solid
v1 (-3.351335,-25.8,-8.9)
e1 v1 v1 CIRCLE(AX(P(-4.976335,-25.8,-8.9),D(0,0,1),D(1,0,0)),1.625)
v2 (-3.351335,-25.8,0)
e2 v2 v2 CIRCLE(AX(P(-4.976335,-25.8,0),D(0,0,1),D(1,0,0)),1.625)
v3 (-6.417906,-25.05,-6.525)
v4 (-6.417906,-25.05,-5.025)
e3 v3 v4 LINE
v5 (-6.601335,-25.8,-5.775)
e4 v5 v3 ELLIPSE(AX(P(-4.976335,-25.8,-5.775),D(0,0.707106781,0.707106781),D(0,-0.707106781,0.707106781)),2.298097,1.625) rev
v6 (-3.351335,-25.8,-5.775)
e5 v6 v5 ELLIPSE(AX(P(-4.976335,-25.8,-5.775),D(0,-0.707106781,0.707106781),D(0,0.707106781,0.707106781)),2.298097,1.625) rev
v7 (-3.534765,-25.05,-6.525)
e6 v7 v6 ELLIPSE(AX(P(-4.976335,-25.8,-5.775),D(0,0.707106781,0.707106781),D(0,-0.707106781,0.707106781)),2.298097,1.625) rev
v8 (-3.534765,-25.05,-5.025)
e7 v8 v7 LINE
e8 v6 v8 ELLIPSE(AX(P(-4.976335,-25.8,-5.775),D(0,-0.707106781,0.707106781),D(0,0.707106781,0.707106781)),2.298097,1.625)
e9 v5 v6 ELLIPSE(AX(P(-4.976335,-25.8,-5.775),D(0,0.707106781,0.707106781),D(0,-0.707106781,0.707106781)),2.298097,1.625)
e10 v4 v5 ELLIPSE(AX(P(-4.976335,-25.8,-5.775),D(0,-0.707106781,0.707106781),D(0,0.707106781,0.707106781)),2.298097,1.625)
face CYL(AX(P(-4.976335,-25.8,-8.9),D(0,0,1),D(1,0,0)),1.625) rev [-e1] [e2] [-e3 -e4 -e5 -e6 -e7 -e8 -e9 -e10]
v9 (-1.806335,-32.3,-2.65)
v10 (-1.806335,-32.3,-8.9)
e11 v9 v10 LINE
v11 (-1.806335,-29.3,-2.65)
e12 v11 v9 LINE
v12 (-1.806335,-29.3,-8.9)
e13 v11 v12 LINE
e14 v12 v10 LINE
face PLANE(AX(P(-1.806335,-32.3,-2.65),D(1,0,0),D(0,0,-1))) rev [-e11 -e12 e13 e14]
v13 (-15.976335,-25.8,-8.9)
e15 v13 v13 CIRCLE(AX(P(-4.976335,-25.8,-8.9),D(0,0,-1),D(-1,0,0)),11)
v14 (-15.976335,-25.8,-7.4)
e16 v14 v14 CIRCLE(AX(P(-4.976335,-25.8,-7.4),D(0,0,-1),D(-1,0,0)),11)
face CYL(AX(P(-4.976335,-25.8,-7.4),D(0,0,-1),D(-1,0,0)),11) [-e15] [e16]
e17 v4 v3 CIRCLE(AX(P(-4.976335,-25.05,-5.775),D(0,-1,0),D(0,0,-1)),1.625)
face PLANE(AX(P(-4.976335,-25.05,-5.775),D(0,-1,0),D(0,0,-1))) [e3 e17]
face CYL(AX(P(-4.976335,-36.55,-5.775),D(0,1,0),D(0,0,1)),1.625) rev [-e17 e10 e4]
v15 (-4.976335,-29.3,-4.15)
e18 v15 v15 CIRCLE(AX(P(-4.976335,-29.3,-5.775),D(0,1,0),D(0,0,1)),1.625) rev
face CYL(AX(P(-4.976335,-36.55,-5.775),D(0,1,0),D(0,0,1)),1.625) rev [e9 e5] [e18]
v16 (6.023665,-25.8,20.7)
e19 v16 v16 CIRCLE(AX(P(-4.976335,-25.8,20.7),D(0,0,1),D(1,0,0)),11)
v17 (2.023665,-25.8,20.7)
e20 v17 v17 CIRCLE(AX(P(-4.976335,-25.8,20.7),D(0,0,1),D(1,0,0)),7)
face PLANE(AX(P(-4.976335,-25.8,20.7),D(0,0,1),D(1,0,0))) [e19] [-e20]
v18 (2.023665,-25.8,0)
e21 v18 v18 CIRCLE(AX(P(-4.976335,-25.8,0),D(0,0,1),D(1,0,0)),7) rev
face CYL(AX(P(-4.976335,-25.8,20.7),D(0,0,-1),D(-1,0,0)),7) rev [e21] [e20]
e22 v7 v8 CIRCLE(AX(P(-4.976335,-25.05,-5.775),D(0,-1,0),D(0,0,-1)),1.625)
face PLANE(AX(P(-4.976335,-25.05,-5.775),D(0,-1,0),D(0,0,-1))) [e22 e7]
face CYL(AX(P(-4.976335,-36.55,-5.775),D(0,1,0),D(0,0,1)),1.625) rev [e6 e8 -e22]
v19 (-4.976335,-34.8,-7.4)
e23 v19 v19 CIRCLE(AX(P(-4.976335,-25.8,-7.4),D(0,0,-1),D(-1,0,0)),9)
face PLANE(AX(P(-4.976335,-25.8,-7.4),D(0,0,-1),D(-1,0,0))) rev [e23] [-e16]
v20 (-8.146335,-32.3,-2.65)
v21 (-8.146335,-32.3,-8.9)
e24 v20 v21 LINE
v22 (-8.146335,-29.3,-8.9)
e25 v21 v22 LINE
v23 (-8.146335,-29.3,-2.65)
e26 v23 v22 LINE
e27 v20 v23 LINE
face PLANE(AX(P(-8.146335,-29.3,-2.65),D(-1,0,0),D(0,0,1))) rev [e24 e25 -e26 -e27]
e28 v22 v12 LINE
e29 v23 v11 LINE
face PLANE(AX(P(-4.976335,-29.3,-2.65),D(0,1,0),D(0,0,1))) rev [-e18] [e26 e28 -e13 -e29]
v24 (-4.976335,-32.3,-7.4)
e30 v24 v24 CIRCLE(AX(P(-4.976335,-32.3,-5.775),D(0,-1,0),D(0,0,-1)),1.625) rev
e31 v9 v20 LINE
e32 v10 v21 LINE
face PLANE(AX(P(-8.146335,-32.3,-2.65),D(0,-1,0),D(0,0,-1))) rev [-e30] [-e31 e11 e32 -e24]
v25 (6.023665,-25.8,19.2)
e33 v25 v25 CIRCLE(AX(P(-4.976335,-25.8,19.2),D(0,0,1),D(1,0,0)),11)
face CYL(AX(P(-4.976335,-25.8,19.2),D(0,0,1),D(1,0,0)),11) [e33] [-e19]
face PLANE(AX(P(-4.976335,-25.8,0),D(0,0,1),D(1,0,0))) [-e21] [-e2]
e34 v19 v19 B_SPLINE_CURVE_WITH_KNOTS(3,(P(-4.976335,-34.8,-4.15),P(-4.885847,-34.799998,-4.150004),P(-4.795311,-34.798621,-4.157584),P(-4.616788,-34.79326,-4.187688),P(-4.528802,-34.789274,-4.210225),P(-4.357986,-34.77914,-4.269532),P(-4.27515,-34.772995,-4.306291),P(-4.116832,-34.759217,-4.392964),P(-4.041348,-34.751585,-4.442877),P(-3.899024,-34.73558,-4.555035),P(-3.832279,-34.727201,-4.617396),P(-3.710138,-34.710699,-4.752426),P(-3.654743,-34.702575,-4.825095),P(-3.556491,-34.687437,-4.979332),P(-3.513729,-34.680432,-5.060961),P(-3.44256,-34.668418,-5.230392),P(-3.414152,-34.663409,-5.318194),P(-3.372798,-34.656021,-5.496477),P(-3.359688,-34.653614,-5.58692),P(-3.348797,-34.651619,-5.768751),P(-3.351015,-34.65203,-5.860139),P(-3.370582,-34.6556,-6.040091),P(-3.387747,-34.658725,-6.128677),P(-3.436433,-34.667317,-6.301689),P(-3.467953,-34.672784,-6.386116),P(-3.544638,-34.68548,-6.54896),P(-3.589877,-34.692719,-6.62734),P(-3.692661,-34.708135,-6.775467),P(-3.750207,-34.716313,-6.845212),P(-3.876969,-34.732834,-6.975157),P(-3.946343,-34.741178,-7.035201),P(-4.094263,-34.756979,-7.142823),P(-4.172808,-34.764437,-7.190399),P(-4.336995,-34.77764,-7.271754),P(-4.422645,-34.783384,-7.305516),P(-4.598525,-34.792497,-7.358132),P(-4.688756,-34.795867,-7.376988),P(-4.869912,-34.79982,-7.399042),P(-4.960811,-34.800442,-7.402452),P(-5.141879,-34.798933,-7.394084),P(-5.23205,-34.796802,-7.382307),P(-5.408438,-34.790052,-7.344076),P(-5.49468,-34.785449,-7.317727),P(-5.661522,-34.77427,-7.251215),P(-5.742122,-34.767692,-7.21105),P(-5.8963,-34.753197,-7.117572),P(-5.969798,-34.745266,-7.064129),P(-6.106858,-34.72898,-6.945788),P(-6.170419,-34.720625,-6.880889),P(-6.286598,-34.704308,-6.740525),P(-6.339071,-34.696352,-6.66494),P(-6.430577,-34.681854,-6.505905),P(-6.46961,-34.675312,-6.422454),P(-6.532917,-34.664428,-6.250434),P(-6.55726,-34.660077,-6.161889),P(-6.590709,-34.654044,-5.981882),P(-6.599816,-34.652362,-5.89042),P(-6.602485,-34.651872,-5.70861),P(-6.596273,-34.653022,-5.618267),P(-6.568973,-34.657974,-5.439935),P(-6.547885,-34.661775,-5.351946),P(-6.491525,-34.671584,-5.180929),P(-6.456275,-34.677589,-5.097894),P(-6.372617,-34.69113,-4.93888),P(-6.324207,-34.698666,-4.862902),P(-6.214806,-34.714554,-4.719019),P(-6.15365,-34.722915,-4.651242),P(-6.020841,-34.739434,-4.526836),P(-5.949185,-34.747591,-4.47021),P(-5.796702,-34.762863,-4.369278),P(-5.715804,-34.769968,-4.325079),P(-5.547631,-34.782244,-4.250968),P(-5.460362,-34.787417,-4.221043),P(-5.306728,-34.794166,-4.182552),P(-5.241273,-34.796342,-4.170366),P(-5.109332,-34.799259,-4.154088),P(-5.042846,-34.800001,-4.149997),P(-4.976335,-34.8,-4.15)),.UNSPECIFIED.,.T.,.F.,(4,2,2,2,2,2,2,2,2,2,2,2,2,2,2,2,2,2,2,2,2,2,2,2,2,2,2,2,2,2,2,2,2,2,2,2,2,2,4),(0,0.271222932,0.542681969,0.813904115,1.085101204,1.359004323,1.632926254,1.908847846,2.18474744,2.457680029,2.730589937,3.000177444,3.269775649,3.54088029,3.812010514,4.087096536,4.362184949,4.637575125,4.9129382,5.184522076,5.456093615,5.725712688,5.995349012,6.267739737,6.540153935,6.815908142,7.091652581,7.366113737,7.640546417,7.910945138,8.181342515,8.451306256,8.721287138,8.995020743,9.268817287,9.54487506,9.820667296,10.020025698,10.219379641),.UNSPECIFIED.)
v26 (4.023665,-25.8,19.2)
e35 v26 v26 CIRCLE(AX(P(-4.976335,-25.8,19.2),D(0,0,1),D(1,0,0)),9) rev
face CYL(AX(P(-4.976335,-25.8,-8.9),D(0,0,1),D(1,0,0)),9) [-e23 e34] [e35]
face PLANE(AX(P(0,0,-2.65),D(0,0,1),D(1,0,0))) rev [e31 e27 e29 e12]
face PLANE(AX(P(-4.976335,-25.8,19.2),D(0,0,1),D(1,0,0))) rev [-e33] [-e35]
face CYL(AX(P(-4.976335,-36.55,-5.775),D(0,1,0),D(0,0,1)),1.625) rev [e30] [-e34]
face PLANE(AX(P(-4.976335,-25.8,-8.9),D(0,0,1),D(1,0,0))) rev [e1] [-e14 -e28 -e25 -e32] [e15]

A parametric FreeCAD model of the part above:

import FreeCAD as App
import Part
import Sketcher

V = App.Vector
Q = App.Units.Quantity


def add_polygon(sketch, points):
    """Adds a closed chain of lines whose ends are joined by coincident constraints."""
    first, n = sketch.GeometryCount, len(points)
    for a, b in zip(points, points[1:] + points[:1]):
        sketch.addGeometry(Part.LineSegment(App.Vector(*a, 0), App.Vector(*b, 0)), False)
    for i in range(n):
        sketch.addConstraint(Sketcher.Constraint("Coincident", first + i, 2, first + (i + 1) % n, 1))

doc = App.newDocument("Part")
body = doc.addObject("PartDesign::Body", "Body")

# Sketch on XY plane
sketch1 = body.newObject("Sketcher::SketchObject", "Sketch")
sketch1.AttachmentSupport = (doc.getObject("XY_Plane"), [""])
sketch1.MapMode = "FlatFace"
sketch1.addGeometry(Part.Circle(V(-5, -25.8, 0), V(0, 0, 1), 9), False)
sketch1.addGeometry(Part.Circle(V(-5, -25.8, 0), V(0, 0, 1), 1.6), False)
sketch1.addConstraint(Sketcher.Constraint("Coincident", 1, 3, 0, 3))
sketch1.addConstraint(Sketcher.Constraint("Diameter", 0, Q("18 mm")))
sketch1.addConstraint(Sketcher.Constraint("Diameter", 1, Q("3.25 mm")))
sketch1.addConstraint(Sketcher.Constraint("DistanceY", 0, 3, -1, 1, Q("25.8 mm")))
sketch1.addConstraint(Sketcher.Constraint("DistanceX", 0, 3, -1, 1, Q("4.976335 mm")))
pad1 = body.newObject("PartDesign::Pad", "Pad")
pad1.Profile = sketch1
pad1.Length = 8.9
pad1.Reversed = True

# Sketch on XY plane
sketch2 = body.newObject("Sketcher::SketchObject", "Sketch001")
sketch2.AttachmentSupport = (doc.getObject("XY_Plane"), [""])
sketch2.MapMode = "FlatFace"
sketch2.AttachmentOffset = App.Placement(V(0, 0, 20.7), App.Rotation())
sketch2.addGeometry(Part.Circle(V(-5, -26, 0), V(0, 0, 1), 9), False)
sketch2.addGeometry(Part.Circle(V(-5, -26, 0), V(0, 0, 1), 7), False)
sketch2.addConstraint(Sketcher.Constraint("Coincident", 1, 3, 0, 3))
sketch2.addConstraint(Sketcher.Constraint("Diameter", 0, Q("18 mm")))
sketch2.addConstraint(Sketcher.Constraint("Diameter", 1, Q("14 mm")))
sketch2.addConstraint(Sketcher.Constraint("DistanceY", 0, 3, -1, 1, Q("25.8 mm")))
sketch2.addConstraint(Sketcher.Constraint("DistanceX", 0, 3, -1, 1, Q("4.976335 mm")))
pad2 = body.newObject("PartDesign::Pad", "Pad001")
pad2.Profile = sketch2
pad2.Length = 20.7
pad2.Reversed = True

# Sketch on XY plane
sketch3 = body.newObject("Sketcher::SketchObject", "Sketch002")
sketch3.AttachmentSupport = (doc.getObject("XY_Plane"), [""])
sketch3.MapMode = "FlatFace"
sketch3.AttachmentOffset = App.Placement(V(0, 0, -8.9), App.Rotation())
add_polygon(sketch3, [(-8.1, -32.3), (-8.1, -29.3), (-1.8, -29.3), (-1.8, -32.3)])  # lines 0-3
sketch3.addConstraint(Sketcher.Constraint("Vertical", 0))
sketch3.addConstraint(Sketcher.Constraint("Horizontal", 1))
sketch3.addConstraint(Sketcher.Constraint("Vertical", 2))
sketch3.addConstraint(Sketcher.Constraint("Horizontal", 3))
sketch3.addConstraint(Sketcher.Constraint("DistanceY", 0, 1, 0, 2, Q("3 mm")))
sketch3.addConstraint(Sketcher.Constraint("DistanceX", 1, 1, 1, 2, Q("6.34 mm")))
sketch3.addConstraint(Sketcher.Constraint("DistanceY", 0, 2, -1, 1, Q("29.3 mm")))
sketch3.addConstraint(Sketcher.Constraint("DistanceX", 0, 2, -1, 1, Q("8.146335 mm")))
pocket1 = body.newObject("PartDesign::Pocket", "Pocket")
pocket1.Profile = sketch3
pocket1.Length = 6.25
pocket1.Reversed = True

# Sketch on XZ plane
sketch4 = body.newObject("Sketcher::SketchObject", "Sketch003")
sketch4.AttachmentSupport = (doc.getObject("XZ_Plane"), [""])
sketch4.MapMode = "FlatFace"
sketch4.AttachmentOffset = App.Placement(V(0, 0, 29.3), App.Rotation())
sketch4.addGeometry(Part.Circle(V(-5, -5.8, 0), V(0, 0, 1), 1.6), False)
sketch4.addConstraint(Sketcher.Constraint("Diameter", 0, Q("3.25 mm")))
sketch4.addConstraint(Sketcher.Constraint("DistanceY", 0, 3, -1, 1, Q("5.775 mm")))
sketch4.addConstraint(Sketcher.Constraint("DistanceX", 0, 3, -1, 1, Q("4.976335 mm")))
pocket2 = body.newObject("PartDesign::Pocket", "Pocket001")
pocket2.Profile = sketch4
pocket2.Type = "TwoLengths"
pocket2.Length = 7.25
pocket2.Length2 = 4.25
pocket2.Reversed = True

# Sketch on XY plane
sketch5 = body.newObject("Sketcher::SketchObject", "Sketch004")
sketch5.AttachmentSupport = (doc.getObject("XY_Plane"), [""])
sketch5.MapMode = "FlatFace"
sketch5.AttachmentOffset = App.Placement(V(0, 0, 20.7), App.Rotation())
sketch5.addGeometry(Part.Circle(V(-5, -26, 0), V(0, 0, 1), 11), False)
sketch5.addGeometry(Part.Circle(V(-5, -26, 0), V(0, 0, 1), 7), False)
sketch5.addConstraint(Sketcher.Constraint("Coincident", 1, 3, 0, 3))
sketch5.addConstraint(Sketcher.Constraint("Diameter", 0, Q("22 mm")))
sketch5.addConstraint(Sketcher.Constraint("Diameter", 1, Q("14 mm")))
sketch5.addConstraint(Sketcher.Constraint("DistanceY", 0, 3, -1, 1, Q("25.8 mm")))
sketch5.addConstraint(Sketcher.Constraint("DistanceX", 0, 3, -1, 1, Q("4.976335 mm")))
pad3 = body.newObject("PartDesign::Pad", "Pad002")
pad3.Profile = sketch5
pad3.Length = 1.5
pad3.Reversed = True

# Sketch on XY plane
sketch6 = body.newObject("Sketcher::SketchObject", "Sketch005")
sketch6.AttachmentSupport = (doc.getObject("XY_Plane"), [""])
sketch6.MapMode = "FlatFace"
sketch6.AttachmentOffset = App.Placement(V(0, 0, -7.4), App.Rotation())
sketch6.addGeometry(Part.Circle(V(-5, -26, 0), V(0, 0, 1), 11), False)
sketch6.addGeometry(Part.Circle(V(-5, -26, 0), V(0, 0, 1), 9), False)
sketch6.addConstraint(Sketcher.Constraint("Coincident", 1, 3, 0, 3))
sketch6.addConstraint(Sketcher.Constraint("Diameter", 0, Q("22 mm")))
sketch6.addConstraint(Sketcher.Constraint("Diameter", 1, Q("18 mm")))
sketch6.addConstraint(Sketcher.Constraint("DistanceY", 0, 3, -1, 1, Q("25.8 mm")))
sketch6.addConstraint(Sketcher.Constraint("DistanceX", 0, 3, -1, 1, Q("4.976335 mm")))
pad4 = body.newObject("PartDesign::Pad", "Pad003")
pad4.Profile = sketch6
pad4.Length = 1.5
pad4.Reversed = True

doc.recompute()
